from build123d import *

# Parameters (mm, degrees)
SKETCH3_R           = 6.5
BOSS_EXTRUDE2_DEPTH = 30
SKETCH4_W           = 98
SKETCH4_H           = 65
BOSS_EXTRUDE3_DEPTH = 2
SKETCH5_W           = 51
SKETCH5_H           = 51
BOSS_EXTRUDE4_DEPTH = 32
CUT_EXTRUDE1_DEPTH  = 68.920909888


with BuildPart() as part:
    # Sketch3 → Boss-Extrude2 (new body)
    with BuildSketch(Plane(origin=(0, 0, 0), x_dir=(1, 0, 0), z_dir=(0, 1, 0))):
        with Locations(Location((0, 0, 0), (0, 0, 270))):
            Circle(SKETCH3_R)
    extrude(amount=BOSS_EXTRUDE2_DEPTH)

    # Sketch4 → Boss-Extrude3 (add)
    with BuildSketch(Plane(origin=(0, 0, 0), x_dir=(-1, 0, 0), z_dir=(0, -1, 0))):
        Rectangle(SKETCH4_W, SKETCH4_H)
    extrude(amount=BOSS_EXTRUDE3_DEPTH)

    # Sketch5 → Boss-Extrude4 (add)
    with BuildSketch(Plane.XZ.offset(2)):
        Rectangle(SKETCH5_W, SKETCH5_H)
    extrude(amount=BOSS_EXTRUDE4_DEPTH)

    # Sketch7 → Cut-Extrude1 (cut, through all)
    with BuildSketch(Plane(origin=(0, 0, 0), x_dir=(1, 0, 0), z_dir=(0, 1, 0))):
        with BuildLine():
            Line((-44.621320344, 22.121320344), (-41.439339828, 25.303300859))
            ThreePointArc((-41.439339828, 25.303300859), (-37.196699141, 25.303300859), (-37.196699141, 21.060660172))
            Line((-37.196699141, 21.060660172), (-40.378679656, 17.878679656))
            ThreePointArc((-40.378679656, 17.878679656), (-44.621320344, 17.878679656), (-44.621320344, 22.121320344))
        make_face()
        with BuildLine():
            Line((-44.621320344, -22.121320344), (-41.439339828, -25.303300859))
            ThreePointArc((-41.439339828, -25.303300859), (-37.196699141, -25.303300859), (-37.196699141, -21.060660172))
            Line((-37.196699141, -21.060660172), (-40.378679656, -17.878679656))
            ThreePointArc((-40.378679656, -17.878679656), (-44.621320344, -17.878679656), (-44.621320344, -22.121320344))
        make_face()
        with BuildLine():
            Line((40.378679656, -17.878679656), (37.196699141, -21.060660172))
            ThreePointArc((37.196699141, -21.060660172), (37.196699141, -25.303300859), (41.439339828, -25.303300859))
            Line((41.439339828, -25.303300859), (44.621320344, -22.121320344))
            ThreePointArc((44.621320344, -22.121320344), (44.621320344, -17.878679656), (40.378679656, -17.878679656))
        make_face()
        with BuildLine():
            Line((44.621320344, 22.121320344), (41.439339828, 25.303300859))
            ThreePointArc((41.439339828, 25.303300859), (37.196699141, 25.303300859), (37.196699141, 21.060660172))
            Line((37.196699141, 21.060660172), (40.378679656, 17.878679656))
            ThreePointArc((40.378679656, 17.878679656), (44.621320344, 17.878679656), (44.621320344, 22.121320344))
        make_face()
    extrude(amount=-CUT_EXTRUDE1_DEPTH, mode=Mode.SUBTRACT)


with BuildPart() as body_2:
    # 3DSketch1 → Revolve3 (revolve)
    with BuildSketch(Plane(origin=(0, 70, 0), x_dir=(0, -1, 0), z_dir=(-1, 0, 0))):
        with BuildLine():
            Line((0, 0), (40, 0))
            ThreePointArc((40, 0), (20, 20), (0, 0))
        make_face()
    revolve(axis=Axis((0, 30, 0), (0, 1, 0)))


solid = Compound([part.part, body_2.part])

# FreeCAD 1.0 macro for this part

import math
import FreeCAD as App
import Part
import Sketcher
Q = App.Units.Quantity

doc = App.newDocument("Part")
body = doc.addObject("PartDesign::Body", "Body")

# Sketch on XZ plane
sketch1 = doc.addObject("Sketcher::SketchObject", "Sketch")
body.addObject(sketch1)
sketch1.AttachmentSupport = (doc.XZ_Plane, [""])
sketch1.MapMode = "FlatFace"
sketch1.addGeometry(Part.Circle(App.Vector(0, 0, 0), App.Vector(0, 0, 1), 6.5), False)
sketch1.addConstraint(Sketcher.Constraint("Coincident", 0, 3, -1, 1))
sketch1.addConstraint(Sketcher.Constraint("Diameter", 0, Q("13 mm")))
pad1 = doc.addObject("PartDesign::Pad", "Pad")
body.addObject(pad1)
pad1.Profile = sketch1
pad1.Length = 30
pad1.Reversed = True

# Sketch on XZ plane
sketch2 = doc.addObject("Sketcher::SketchObject", "Sketch001")
body.addObject(sketch2)
sketch2.AttachmentSupport = (doc.XZ_Plane, [""])
sketch2.MapMode = "FlatFace"
sketch2.addGeometry(Part.LineSegment(App.Vector(49, -32.5, 0), App.Vector(49, 32.5, 0)), False)
sketch2.addGeometry(Part.LineSegment(App.Vector(49, 32.5, 0), App.Vector(-49, 32.5, 0)), False)
sketch2.addGeometry(Part.LineSegment(App.Vector(-49, 32.5, 0), App.Vector(-49, -32.5, 0)), False)
sketch2.addGeometry(Part.LineSegment(App.Vector(-49, -32.5, 0), App.Vector(49, -32.5, 0)), False)
sketch2.addConstraint(Sketcher.Constraint("Coincident", 0, 2, 1, 1))
sketch2.addConstraint(Sketcher.Constraint("Coincident", 1, 2, 2, 1))
sketch2.addConstraint(Sketcher.Constraint("Coincident", 2, 2, 3, 1))
sketch2.addConstraint(Sketcher.Constraint("Coincident", 3, 2, 0, 1))
sketch2.addConstraint(Sketcher.Constraint("Vertical", 0))
sketch2.addConstraint(Sketcher.Constraint("Horizontal", 1))
sketch2.addConstraint(Sketcher.Constraint("Vertical", 2))
sketch2.addConstraint(Sketcher.Constraint("Horizontal", 3))
sketch2.addConstraint(Sketcher.Constraint("Symmetric", 0, 2, 2, 2, -1, 1))
sketch2.addConstraint(Sketcher.Constraint("DistanceX", 1, 2, 1, 1, Q("98 mm")))
sketch2.addConstraint(Sketcher.Constraint("DistanceY", 0, 1, 0, 2, Q("65 mm")))
pad2 = doc.addObject("PartDesign::Pad", "Pad001")
body.addObject(pad2)
pad2.Profile = sketch2
pad2.Length = 2

# Sketch on XZ plane
sketch3 = doc.addObject("Sketcher::SketchObject", "Sketch002")
body.addObject(sketch3)
sketch3.AttachmentSupport = (doc.XZ_Plane, [""])
sketch3.MapMode = "FlatFace"
sketch3.AttachmentOffset = App.Placement(App.Vector(0, 0, 2), App.Rotation())
sketch3.addGeometry(Part.LineSegment(App.Vector(-25.5, 25.5, 0), App.Vector(-25.5, -25.5, 0)), False)
sketch3.addGeometry(Part.LineSegment(App.Vector(-25.5, -25.5, 0), App.Vector(25.5, -25.5, 0)), False)
sketch3.addGeometry(Part.LineSegment(App.Vector(25.5, -25.5, 0), App.Vector(25.5, 25.5, 0)), False)
sketch3.addGeometry(Part.LineSegment(App.Vector(25.5, 25.5, 0), App.Vector(-25.5, 25.5, 0)), False)
sketch3.addConstraint(Sketcher.Constraint("Coincident", 0, 2, 1, 1))
sketch3.addConstraint(Sketcher.Constraint("Coincident", 1, 2, 2, 1))
sketch3.addConstraint(Sketcher.Constraint("Coincident", 2, 2, 3, 1))
sketch3.addConstraint(Sketcher.Constraint("Coincident", 3, 2, 0, 1))
sketch3.addConstraint(Sketcher.Constraint("Vertical", 0))
sketch3.addConstraint(Sketcher.Constraint("Horizontal", 1))
sketch3.addConstraint(Sketcher.Constraint("Vertical", 2))
sketch3.addConstraint(Sketcher.Constraint("Horizontal", 3))
sketch3.addConstraint(Sketcher.Constraint("Symmetric", 0, 2, 2, 2, -1, 1))
sketch3.addConstraint(Sketcher.Constraint("Equal", 3, 0))
sketch3.addConstraint(Sketcher.Constraint("DistanceX", 1, 1, 1, 2, Q("51 mm")))
pad3 = doc.addObject("PartDesign::Pad", "Pad002")
body.addObject(pad3)
pad3.Profile = sketch3
pad3.Length = 32

# Sketch on XZ plane
sketch4 = doc.addObject("Sketcher::SketchObject", "Sketch003")
body.addObject(sketch4)
sketch4.AttachmentSupport = (doc.XZ_Plane, [""])
sketch4.MapMode = "FlatFace"
sketch4.addGeometry(Part.LineSegment(App.Vector(-41.43934, -25.303301, 0), App.Vector(-44.62132, -22.12132, 0)), False)
sketch4.addGeometry(Part.ArcOfCircle(Part.Circle(App.Vector(-42.5, -20, 0), App.Vector(0, 0, 1), 3), math.radians(45), math.radians(225)), False)
sketch4.addGeometry(Part.LineSegment(App.Vector(-40.37868, -17.87868, 0), App.Vector(-37.196699, -21.06066, 0)), False)
sketch4.addGeometry(Part.ArcOfCircle(Part.Circle(App.Vector(-39.318019, -23.181981, 0), App.Vector(0, 0, 1), 3), math.radians(-135), math.radians(45)), False)
sketch4.addGeometry(Part.LineSegment(App.Vector(-44.62132, 22.12132, 0), App.Vector(-41.43934, 25.303301, 0)), False)
sketch4.addGeometry(Part.ArcOfCircle(Part.Circle(App.Vector(-39.318019, 23.181981, 0), App.Vector(0, 0, 1), 3), math.radians(-45), math.radians(135)), False)
sketch4.addGeometry(Part.LineSegment(App.Vector(-37.196699, 21.06066, 0), App.Vector(-40.37868, 17.87868, 0)), False)
sketch4.addGeometry(Part.ArcOfCircle(Part.Circle(App.Vector(-42.5, 20, 0), App.Vector(0, 0, 1), 3), math.radians(135), math.radians(315)), False)
sketch4.addGeometry(Part.LineSegment(App.Vector(40.37868, 17.87868, 0), App.Vector(37.196699, 21.06066, 0)), False)
sketch4.addGeometry(Part.ArcOfCircle(Part.Circle(App.Vector(39.318019, 23.181981, 0), App.Vector(0, 0, 1), 3), math.radians(45), math.radians(225)), False)
sketch4.addGeometry(Part.LineSegment(App.Vector(41.43934, 25.303301, 0), App.Vector(44.62132, 22.12132, 0)), False)
sketch4.addGeometry(Part.ArcOfCircle(Part.Circle(App.Vector(42.5, 20, 0), App.Vector(0, 0, 1), 3), math.radians(-135), math.radians(45)), False)
sketch4.addGeometry(Part.LineSegment(App.Vector(44.62132, -22.12132, 0), App.Vector(41.43934, -25.303301, 0)), False)
sketch4.addGeometry(Part.ArcOfCircle(Part.Circle(App.Vector(39.318019, -23.181981, 0), App.Vector(0, 0, 1), 3), math.radians(135), math.radians(315)), False)
sketch4.addGeometry(Part.LineSegment(App.Vector(37.196699, -21.06066, 0), App.Vector(40.37868, -17.87868, 0)), False)
sketch4.addGeometry(Part.ArcOfCircle(Part.Circle(App.Vector(42.5, -20, 0), App.Vector(0, 0, 1), 3), math.radians(-45), math.radians(135)), False)
sketch4.addConstraint(Sketcher.Constraint("Tangent", 0, 2, 1, 2))
sketch4.addConstraint(Sketcher.Constraint("Tangent", 1, 1, 2, 1))
sketch4.addConstraint(Sketcher.Constraint("Tangent", 2, 2, 3, 2))
sketch4.addConstraint(Sketcher.Constraint("Tangent", 3, 1, 0, 1))
sketch4.addConstraint(Sketcher.Constraint("Tangent", 4, 2, 5, 2))
sketch4.addConstraint(Sketcher.Constraint("Tangent", 5, 1, 6, 1))
sketch4.addConstraint(Sketcher.Constraint("Tangent", 6, 2, 7, 2))
sketch4.addConstraint(Sketcher.Constraint("Tangent", 7, 1, 4, 1))
sketch4.addConstraint(Sketcher.Constraint("Tangent", 8, 2, 9, 2))
sketch4.addConstraint(Sketcher.Constraint("Tangent", 9, 1, 10, 1))
sketch4.addConstraint(Sketcher.Constraint("Tangent", 10, 2, 11, 2))
sketch4.addConstraint(Sketcher.Constraint("Tangent", 11, 1, 8, 1))
sketch4.addConstraint(Sketcher.Constraint("Tangent", 12, 2, 13, 2))
sketch4.addConstraint(Sketcher.Constraint("Tangent", 13, 1, 14, 1))
sketch4.addConstraint(Sketcher.Constraint("Tangent", 14, 2, 15, 2))
sketch4.addConstraint(Sketcher.Constraint("Tangent", 15, 1, 12, 1))
sketch4.addConstraint(Sketcher.Constraint("Equal", 1, 3))
sketch4.addConstraint(Sketcher.Constraint("Equal", 3, 5))
sketch4.addConstraint(Sketcher.Constraint("Equal", 5, 7))
sketch4.addConstraint(Sketcher.Constraint("Equal", 7, 9))
sketch4.addConstraint(Sketcher.Constraint("Equal", 9, 11))
sketch4.addConstraint(Sketcher.Constraint("Equal", 11, 13))
sketch4.addConstraint(Sketcher.Constraint("Equal", 13, 15))
sketch4.addConstraint(Sketcher.Constraint("Symmetric", 3, 3, 9, 3, -1, 1))
sketch4.addConstraint(Sketcher.Constraint("Symmetric", 1, 3, 11, 3, -1, 1))
sketch4.addConstraint(Sketcher.Constraint("Symmetric", 5, 3, 13, 3, -1, 1))
sketch4.addConstraint(Sketcher.Constraint("Symmetric", 7, 3, 15, 3, -1, 1))
sketch4.addConstraint(Sketcher.Constraint("Symmetric", 5, 3, 9, 3, -2))
sketch4.addConstraint(Sketcher.Constraint("Symmetric", 7, 3, 11, 3, -2))
sketch4.addConstraint(Sketcher.Constraint("Perpendicular", 2, 4))
sketch4.addConstraint(Sketcher.Constraint("Radius", 1, Q("3 mm")))
sketch4.addConstraint(Sketcher.Constraint("DistanceY", 1, 3, -1, 1, Q("20 mm")))
sketch4.addConstraint(Sketcher.Constraint("DistanceX", 7, 3, 11, 3, Q("85 mm")))
sketch4.addConstraint(Sketcher.Constraint("Distance", 0, Q("4.5 mm")))
pocket1 = doc.addObject("PartDesign::Pocket", "Pocket")
body.addObject(pocket1)
pocket1.Profile = sketch4
pocket1.Type = "ThroughAll"
pocket1.Reversed = True
body2 = doc.addObject("PartDesign::Body", "Body001")

# Sketch on YZ plane
sketch5 = doc.addObject("Sketcher::SketchObject", "Sketch004")
body2.addObject(sketch5)
sketch5.AttachmentSupport = (doc.getObject("YZ_Plane001"), [""])
sketch5.MapMode = "FlatFace"
sketch5.addGeometry(Part.LineSegment(App.Vector(70, 0, 0), App.Vector(30, 0, 0)), False)
sketch5.addGeometry(Part.ArcOfCircle(Part.Circle(App.Vector(50, 0, 0), App.Vector(0, 0, 1), 20), math.radians(0), math.radians(180)), False)
sketch5.addConstraint(Sketcher.Constraint("Coincident", 0, 1, 1, 1))
sketch5.addConstraint(Sketcher.Constraint("Coincident", 1, 2, 0, 2))
sketch5.addConstraint(Sketcher.Constraint("Horizontal", 0))
sketch5.addConstraint(Sketcher.Constraint("PointOnObject", 1, 3, -1))
sketch5.addConstraint(Sketcher.Constraint("PointOnObject", 0, 1, -1))
sketch5.addConstraint(Sketcher.Constraint("Radius", 1, Q("20 mm")))
sketch5.addConstraint(Sketcher.Constraint("DistanceX", -1, 1, 1, 3, Q("50 mm")))
revolution = doc.addObject("PartDesign::Revolution", "Revolution")
body2.addObject(revolution)
revolution.Profile = sketch5
revolution.ReferenceAxis = (sketch5, ["H_Axis"])
revolution.Angle = 360

doc.recompute()
